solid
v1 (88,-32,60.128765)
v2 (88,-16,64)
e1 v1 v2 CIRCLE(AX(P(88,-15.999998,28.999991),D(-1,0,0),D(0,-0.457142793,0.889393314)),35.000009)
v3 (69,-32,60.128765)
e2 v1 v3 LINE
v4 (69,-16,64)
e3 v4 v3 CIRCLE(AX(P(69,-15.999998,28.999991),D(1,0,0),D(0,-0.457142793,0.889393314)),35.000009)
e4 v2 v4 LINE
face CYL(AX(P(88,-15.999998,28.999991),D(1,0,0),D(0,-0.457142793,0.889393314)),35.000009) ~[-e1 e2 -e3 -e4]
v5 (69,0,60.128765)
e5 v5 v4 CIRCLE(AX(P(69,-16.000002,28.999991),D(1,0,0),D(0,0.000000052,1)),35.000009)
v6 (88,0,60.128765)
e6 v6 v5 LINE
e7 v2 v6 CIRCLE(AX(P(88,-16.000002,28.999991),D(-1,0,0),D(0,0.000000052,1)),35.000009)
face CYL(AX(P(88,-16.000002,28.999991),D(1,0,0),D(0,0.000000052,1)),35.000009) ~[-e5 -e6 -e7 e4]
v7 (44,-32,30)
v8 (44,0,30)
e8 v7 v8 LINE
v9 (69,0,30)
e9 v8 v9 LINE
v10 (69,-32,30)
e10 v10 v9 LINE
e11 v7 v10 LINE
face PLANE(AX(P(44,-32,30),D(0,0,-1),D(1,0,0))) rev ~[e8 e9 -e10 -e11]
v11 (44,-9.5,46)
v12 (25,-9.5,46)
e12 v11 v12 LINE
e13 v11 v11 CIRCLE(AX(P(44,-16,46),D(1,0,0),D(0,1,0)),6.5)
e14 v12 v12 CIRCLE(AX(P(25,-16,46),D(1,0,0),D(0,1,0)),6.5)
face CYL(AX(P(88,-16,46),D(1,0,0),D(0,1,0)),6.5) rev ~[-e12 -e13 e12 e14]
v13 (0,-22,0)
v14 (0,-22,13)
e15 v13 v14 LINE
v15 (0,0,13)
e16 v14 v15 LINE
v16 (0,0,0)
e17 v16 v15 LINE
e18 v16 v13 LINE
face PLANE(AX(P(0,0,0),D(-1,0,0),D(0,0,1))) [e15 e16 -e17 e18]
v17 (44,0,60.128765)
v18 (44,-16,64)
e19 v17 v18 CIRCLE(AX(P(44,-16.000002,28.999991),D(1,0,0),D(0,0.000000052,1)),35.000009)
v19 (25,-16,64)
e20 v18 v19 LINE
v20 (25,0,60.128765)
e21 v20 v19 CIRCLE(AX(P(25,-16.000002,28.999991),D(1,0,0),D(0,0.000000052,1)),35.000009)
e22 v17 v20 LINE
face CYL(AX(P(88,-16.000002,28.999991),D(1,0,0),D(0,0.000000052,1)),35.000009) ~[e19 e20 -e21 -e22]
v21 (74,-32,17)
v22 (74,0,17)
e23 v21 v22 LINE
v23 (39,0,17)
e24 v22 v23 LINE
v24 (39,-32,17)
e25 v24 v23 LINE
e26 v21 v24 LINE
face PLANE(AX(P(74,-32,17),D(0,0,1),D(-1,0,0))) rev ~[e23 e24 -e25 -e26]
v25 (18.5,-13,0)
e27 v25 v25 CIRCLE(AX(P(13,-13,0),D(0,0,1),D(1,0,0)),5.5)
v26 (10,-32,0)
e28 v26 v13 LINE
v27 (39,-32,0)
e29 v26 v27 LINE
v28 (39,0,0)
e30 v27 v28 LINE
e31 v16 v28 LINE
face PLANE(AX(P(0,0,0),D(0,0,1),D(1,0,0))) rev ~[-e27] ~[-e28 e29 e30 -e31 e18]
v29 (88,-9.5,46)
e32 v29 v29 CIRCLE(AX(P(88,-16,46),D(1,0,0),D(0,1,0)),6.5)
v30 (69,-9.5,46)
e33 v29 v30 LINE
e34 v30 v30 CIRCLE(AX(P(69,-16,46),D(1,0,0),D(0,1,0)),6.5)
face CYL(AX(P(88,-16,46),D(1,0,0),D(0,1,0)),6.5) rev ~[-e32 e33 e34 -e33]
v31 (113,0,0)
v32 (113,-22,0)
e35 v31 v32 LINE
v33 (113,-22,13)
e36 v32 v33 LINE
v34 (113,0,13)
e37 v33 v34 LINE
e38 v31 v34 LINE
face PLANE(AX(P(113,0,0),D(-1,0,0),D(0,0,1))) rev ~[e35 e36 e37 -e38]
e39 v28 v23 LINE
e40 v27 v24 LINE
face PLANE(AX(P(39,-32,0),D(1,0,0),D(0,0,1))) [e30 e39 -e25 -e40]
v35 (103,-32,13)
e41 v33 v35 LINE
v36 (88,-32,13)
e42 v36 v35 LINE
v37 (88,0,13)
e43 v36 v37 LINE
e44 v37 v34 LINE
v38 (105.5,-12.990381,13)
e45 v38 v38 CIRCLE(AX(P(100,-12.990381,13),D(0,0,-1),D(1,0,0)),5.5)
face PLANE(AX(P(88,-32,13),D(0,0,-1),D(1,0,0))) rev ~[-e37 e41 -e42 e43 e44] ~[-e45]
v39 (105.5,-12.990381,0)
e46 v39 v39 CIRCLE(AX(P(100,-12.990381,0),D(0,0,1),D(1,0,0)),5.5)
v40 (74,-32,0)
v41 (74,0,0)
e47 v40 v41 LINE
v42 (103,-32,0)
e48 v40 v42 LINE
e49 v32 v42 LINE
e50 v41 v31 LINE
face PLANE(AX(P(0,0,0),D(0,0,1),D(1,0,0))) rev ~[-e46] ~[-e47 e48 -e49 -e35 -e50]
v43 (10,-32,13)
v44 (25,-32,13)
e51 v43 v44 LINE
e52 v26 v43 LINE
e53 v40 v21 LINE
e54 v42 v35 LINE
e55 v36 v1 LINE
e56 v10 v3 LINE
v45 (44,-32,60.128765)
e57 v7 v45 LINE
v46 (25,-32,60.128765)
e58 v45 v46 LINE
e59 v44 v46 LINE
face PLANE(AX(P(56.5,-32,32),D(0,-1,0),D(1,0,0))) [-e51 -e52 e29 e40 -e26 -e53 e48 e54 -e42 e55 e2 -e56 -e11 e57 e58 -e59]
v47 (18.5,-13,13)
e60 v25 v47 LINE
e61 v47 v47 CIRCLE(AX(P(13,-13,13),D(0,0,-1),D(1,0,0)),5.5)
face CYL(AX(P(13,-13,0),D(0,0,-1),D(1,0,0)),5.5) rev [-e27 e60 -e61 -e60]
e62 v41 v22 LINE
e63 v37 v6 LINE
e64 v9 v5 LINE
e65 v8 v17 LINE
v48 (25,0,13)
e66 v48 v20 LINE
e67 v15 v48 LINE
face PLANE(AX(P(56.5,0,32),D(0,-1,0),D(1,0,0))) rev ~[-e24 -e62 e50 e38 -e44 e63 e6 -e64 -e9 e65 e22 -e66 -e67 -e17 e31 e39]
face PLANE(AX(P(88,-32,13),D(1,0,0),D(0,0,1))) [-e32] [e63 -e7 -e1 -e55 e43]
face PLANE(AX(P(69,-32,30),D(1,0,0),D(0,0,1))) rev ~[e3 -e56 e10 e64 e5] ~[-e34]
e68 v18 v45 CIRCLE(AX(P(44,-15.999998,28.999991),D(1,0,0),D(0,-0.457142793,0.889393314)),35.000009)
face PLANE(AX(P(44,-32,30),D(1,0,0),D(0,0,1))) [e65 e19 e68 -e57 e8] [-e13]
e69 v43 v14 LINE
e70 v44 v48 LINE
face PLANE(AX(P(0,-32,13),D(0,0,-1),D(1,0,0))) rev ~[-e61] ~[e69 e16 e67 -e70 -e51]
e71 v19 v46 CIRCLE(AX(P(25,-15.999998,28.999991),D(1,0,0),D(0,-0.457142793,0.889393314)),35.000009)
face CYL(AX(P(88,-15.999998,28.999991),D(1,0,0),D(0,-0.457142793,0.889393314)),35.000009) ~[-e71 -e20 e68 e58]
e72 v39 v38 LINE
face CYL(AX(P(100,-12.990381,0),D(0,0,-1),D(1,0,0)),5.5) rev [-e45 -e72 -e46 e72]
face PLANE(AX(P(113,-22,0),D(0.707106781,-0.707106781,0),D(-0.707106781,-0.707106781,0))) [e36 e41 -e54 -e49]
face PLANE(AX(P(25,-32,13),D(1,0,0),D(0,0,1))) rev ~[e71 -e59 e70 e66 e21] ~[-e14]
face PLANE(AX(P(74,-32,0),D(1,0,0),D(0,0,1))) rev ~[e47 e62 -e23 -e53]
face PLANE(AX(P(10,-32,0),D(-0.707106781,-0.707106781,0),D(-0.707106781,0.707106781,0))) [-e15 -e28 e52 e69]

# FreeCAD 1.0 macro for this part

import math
import FreeCAD as App
import Part
import Sketcher

V = App.Vector


def add_polygon(sketch, points):
    """Adds a closed chain of lines whose ends are joined by coincident constraints."""
    first, n = sketch.GeometryCount, len(points)
    for a, b in zip(points, points[1:] + points[:1]):
        sketch.addGeometry(Part.LineSegment(App.Vector(*a, 0), App.Vector(*b, 0)), False)
    for i in range(n):
        sketch.addConstraint(Sketcher.Constraint("Coincident", first + i, 2, first + (i + 1) % n, 1))

doc = App.newDocument("Part")
body = doc.addObject("PartDesign::Body", "Body")

# Sketch on XZ plane
sketch1 = body.newObject("Sketcher::SketchObject", "Sketch")
sketch1.AttachmentSupport = (doc.getObject("XZ_Plane"), [""])
sketch1.MapMode = "FlatFace"
add_polygon(sketch1, [(0, 64), (0, 0), (113, 0), (113, 64)])  # lines 0-3
sketch1.addConstraint([
    Sketcher.Constraint("Vertical", 0),
    Sketcher.Constraint("Horizontal", 1),
    Sketcher.Constraint("Vertical", 2),
    Sketcher.Constraint("Horizontal", 3),
    Sketcher.Constraint("Coincident", 0, 2, -1, 1),
    Sketcher.Constraint("DistanceX", 1, 1, 1, 2, 113.0),
    Sketcher.Constraint("DistanceY", 0, 2, 0, 1, 64.0),
])
pad1 = body.newObject("PartDesign::Pad", "Pad")
pad1.Profile = sketch1
pad1.Length = 32

# Sketch on XZ plane
sketch2 = body.newObject("Sketcher::SketchObject", "Sketch001")
sketch2.AttachmentSupport = (doc.getObject("XZ_Plane"), [""])
sketch2.MapMode = "FlatFace"
sketch2.AttachmentOffset = App.Placement(V(0, 0, 32), App.Rotation())
add_polygon(sketch2, [(39, 17), (39, 0), (74, 0), (74, 17)])  # lines 0-3
add_polygon(sketch2, [(44, 64), (44, 30), (69, 30), (69, 64)])  # lines 4-7
add_polygon(sketch2, [(0, 64), (0, 13), (25, 13), (25, 64)])  # lines 8-11
add_polygon(sketch2, [(88, 64), (88, 13), (113, 13), (113, 64)])  # lines 12-15
sketch2.addConstraint([
    Sketcher.Constraint("Vertical", 0),
    Sketcher.Constraint("Horizontal", 1),
    Sketcher.Constraint("Vertical", 2),
    Sketcher.Constraint("Horizontal", 3),
    Sketcher.Constraint("Vertical", 4),
    Sketcher.Constraint("Horizontal", 5),
    Sketcher.Constraint("Vertical", 6),
    Sketcher.Constraint("Horizontal", 7),
    Sketcher.Constraint("Vertical", 8),
    Sketcher.Constraint("Horizontal", 9),
    Sketcher.Constraint("Vertical", 10),
    Sketcher.Constraint("Horizontal", 11),
    Sketcher.Constraint("Vertical", 12),
    Sketcher.Constraint("Horizontal", 13),
    Sketcher.Constraint("Vertical", 14),
    Sketcher.Constraint("Horizontal", 15),
    Sketcher.Constraint("PointOnObject", 0, 2, -1),
    Sketcher.Constraint("PointOnObject", 8, 2, -2),
    Sketcher.Constraint("Horizontal", 7, 2, 10, 2),
    Sketcher.Constraint("Horizontal", 9, 2, 12, 2),
    Sketcher.Constraint("Horizontal", 11, 2, 14, 2),
    Sketcher.Constraint("Equal", 7, 9),
    Sketcher.Constraint("Equal", 11, 13),
    Sketcher.Constraint("DistanceX", 1, 1, 1, 2, 35.0),
    Sketcher.Constraint("DistanceX", 5, 1, 5, 2, 25.0),
    Sketcher.Constraint("DistanceY", 0, 2, 0, 1, 17.0),
    Sketcher.Constraint("DistanceY", 4, 2, 4, 1, 34.0),
    Sketcher.Constraint("DistanceY", 8, 2, 8, 1, 51.0),
    Sketcher.Constraint("DistanceX", -1, 1, 0, 2, 39.0),
    Sketcher.Constraint("DistanceX", -1, 1, 4, 2, 44.0),
    Sketcher.Constraint("DistanceY", -1, 1, 4, 2, 30.0),
    Sketcher.Constraint("DistanceX", -1, 1, 12, 2, 88.0),
])
pocket1 = body.newObject("PartDesign::Pocket", "Pocket")
pocket1.Profile = sketch2
pocket1.Type = "ThroughAll"

# Sketch on YZ plane
sketch3 = body.newObject("Sketcher::SketchObject", "Sketch002")
sketch3.AttachmentSupport = (doc.getObject("YZ_Plane"), [""])
sketch3.MapMode = "FlatFace"
sketch3.AttachmentOffset = App.Placement(V(0, 0, 88), App.Rotation())
sketch3.addGeometry([
    Part.ArcOfCircle(Part.Circle(V(-16, 29, 0), V(0, 0, 1), 35), math.radians(90), math.radians(117)),  # 0
    Part.LineSegment(V(-16, 64, 0), V(-32, 64, 0)),  # 1
    Part.LineSegment(V(-32, 64, 0), V(-32, 60.1, 0)),  # 2
    Part.ArcOfCircle(Part.Circle(V(-16, 29, 0), V(0, 0, 1), 35), math.radians(63), math.radians(90)),  # 3
    Part.LineSegment(V(0, 60.1, 0), V(0, 64, 0)),  # 4
    Part.LineSegment(V(0, 64, 0), V(-16, 64, 0)),  # 5
], False)
sketch3.addConstraint([
    Sketcher.Constraint("Tangent", 0, 1, 1, 1),
    Sketcher.Constraint("Coincident", 1, 2, 2, 1),
    Sketcher.Constraint("Coincident", 2, 2, 0, 2),
    Sketcher.Constraint("Coincident", 3, 1, 4, 1),
    Sketcher.Constraint("Coincident", 4, 2, 5, 1),
    Sketcher.Constraint("Tangent", 5, 2, 3, 2),
    Sketcher.Constraint("Horizontal", 1),
    Sketcher.Constraint("Vertical", 2),
    Sketcher.Constraint("Vertical", 4),
    Sketcher.Constraint("Horizontal", 5),
    Sketcher.Constraint("Coincident", 3, 3, 0, 3),
    Sketcher.Constraint("Equal", 0, 3),
    Sketcher.Constraint("PointOnObject", 3, 1, -2),
    Sketcher.Constraint("Horizontal", 2, 2, 3, 1),
    Sketcher.Constraint("DistanceX", 1, 2, 1, 1, 16.0),
    Sketcher.Constraint("DistanceY", -1, 1, 0, 1, 64.0),
    Sketcher.Constraint("Radius", 0, 35.000009),
])
pocket2 = body.newObject("PartDesign::Pocket", "Pocket001")
pocket2.Profile = sketch3
pocket2.Type = "ThroughAll"

# Sketch on XY plane
sketch4 = body.newObject("Sketcher::SketchObject", "Sketch003")
sketch4.AttachmentSupport = (doc.getObject("XY_Plane"), [""])
sketch4.MapMode = "FlatFace"
add_polygon(sketch4, [(10, -32), (0, -22), (0, -32)])  # lines 0-2
add_polygon(sketch4, [(113, -32), (113, -22), (103, -32)])  # lines 3-5
sketch4.addGeometry(Part.Circle(V(13, -13, 0), V(0, 0, 1), 6), False)  # 6
sketch4.addGeometry(Part.Circle(V(100, -13, 0), V(0, 0, 1), 6), False)  # 7
sketch4.addConstraint([
    Sketcher.Constraint("Vertical", 1),
    Sketcher.Constraint("Horizontal", 2),
    Sketcher.Constraint("Vertical", 3),
    Sketcher.Constraint("Horizontal", 5),
    Sketcher.Constraint("Equal", 6, 7),
    Sketcher.Constraint("PointOnObject", 0, 2, -2),
    Sketcher.Constraint("Perpendicular", 0, 4),
    Sketcher.Constraint("Horizontal", 0, 2, 3, 2),
    Sketcher.Constraint("Horizontal", 2, 2, 4, 2),
    Sketcher.Constraint("Equal", 2, 5),
    Sketcher.Constraint("Diameter", 6, 11.0),
    Sketcher.Constraint("DistanceX", 2, 1, 2, 2, 10.0),
    Sketcher.Constraint("DistanceX", -1, 1, 6, 3, 13.0),
    Sketcher.Constraint("DistanceY", 6, 3, -1, 1, 13.0),
    Sketcher.Constraint("DistanceX", -1, 1, 7, 3, 100.0),
    Sketcher.Constraint("DistanceY", 0, 2, -1, 1, 22.0),
    Sketcher.Constraint("DistanceX", -1, 1, 3, 2, 113.0),
    Sketcher.Constraint("DistanceY", 7, 3, -1, 1, 12.990381),
])
pocket3 = body.newObject("PartDesign::Pocket", "Pocket002")
pocket3.Profile = sketch4
pocket3.Type = "ThroughAll"
pocket3.Reversed = True

# Sketch on YZ plane
sketch5 = body.newObject("Sketcher::SketchObject", "Sketch004")
sketch5.AttachmentSupport = (doc.getObject("YZ_Plane"), [""])
sketch5.MapMode = "FlatFace"
sketch5.AttachmentOffset = App.Placement(V(0, 0, 88), App.Rotation())
sketch5.addGeometry(Part.Circle(V(-16, 46, 0), V(0, 0, 1), 6), False)
sketch5.addConstraint([
    Sketcher.Constraint("Diameter", 0, 13.0),
    Sketcher.Constraint("DistanceX", 0, 3, -1, 1, 16.0),
    Sketcher.Constraint("DistanceY", -1, 1, 0, 3, 46.0),
])
pocket4 = body.newObject("PartDesign::Pocket", "Pocket003")
pocket4.Profile = sketch5
pocket4.Type = "ThroughAll"

doc.recompute()
